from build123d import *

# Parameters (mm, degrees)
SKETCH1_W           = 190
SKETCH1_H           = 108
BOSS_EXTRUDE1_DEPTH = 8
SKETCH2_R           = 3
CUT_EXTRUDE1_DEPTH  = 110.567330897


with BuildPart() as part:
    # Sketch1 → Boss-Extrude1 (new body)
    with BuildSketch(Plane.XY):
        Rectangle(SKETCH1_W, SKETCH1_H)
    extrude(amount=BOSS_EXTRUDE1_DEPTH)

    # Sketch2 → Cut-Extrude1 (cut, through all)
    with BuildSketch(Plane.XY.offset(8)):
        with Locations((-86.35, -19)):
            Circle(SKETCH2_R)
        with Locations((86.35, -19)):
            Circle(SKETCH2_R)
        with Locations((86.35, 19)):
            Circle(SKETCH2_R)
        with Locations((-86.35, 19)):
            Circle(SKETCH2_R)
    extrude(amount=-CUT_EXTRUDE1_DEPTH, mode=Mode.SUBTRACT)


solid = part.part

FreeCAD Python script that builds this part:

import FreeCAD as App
import Part
import Sketcher

V = App.Vector


def add_polygon(sketch, points):
    """Adds a closed chain of lines whose ends are joined by coincident constraints."""
    first, n = sketch.GeometryCount, len(points)
    for a, b in zip(points, points[1:] + points[:1]):
        sketch.addGeometry(Part.LineSegment(App.Vector(*a, 0), App.Vector(*b, 0)), False)
    for i in range(n):
        sketch.addConstraint(Sketcher.Constraint("Coincident", first + i, 2, first + (i + 1) % n, 1))

doc = App.newDocument("Part")
params = doc.addObject("Spreadsheet::Sheet", "Params")
for row, (alias, value) in enumerate([
    ("sketch1_width", "190 mm"),
    ("sketch1_height", "108 mm"),
    ("pad1_length", "8 mm"),
    ("sketch2_diameter", "6 mm"),
], start=1):
    params.set(f"A{row}", alias)
    params.set(f"B{row}", "=" + value)
    params.setAlias(f"B{row}", alias)

body = doc.addObject("PartDesign::Body", "Body")

sketch1 = body.newObject("Sketcher::SketchObject", "Sketch")
sketch1.AttachmentSupport = (doc.getObject("XY_Plane"), [""])
sketch1.MapMode = "FlatFace"
add_polygon(sketch1, [(-95, 54), (-95, -54), (95, -54), (95, 54)])
sketch1.addConstraint([
    Sketcher.Constraint("Vertical", 0),
    Sketcher.Constraint("Horizontal", 1),
    Sketcher.Constraint("Vertical", 2),
    Sketcher.Constraint("Horizontal", 3),
    Sketcher.Constraint("Symmetric", 0, 2, 2, 2, -1, 1),
    Sketcher.Constraint("DistanceX", 1, 1, 1, 2, 190.0),
    Sketcher.Constraint("DistanceY", 0, 2, 0, 1, 108.0),
])
sketch1.setExpression("Constraints[9]", "Params.sketch1_width")
sketch1.setExpression("Constraints[10]", "Params.sketch1_height")
pad1 = body.newObject("PartDesign::Pad", "Pad")
pad1.Profile = sketch1
pad1.setExpression("Length", "Params.pad1_length")

sketch2 = body.newObject("Sketcher::SketchObject", "Sketch001")
sketch2.AttachmentSupport = (doc.getObject("XY_Plane"), [""])
sketch2.MapMode = "FlatFace"
sketch2.AttachmentOffset = App.Placement(V(0, 0, 8), App.Rotation())
sketch2.addGeometry([
    Part.Circle(V(-86.3, -19, 0), V(0, 0, 1), 3),
    Part.Circle(V(86.3, -19, 0), V(0, 0, 1), 3),
    Part.Circle(V(86.3, 19, 0), V(0, 0, 1), 3),
    Part.Circle(V(-86.3, 19, 0), V(0, 0, 1), 3),
], False)
sketch2.addConstraint([
    Sketcher.Constraint("Equal", 0, 1),
    Sketcher.Constraint("Equal", 1, 2),
    Sketcher.Constraint("Equal", 2, 3),
    Sketcher.Constraint("Symmetric", 0, 3, 2, 3, -1, 1),
    Sketcher.Constraint("Symmetric", 1, 3, 3, 3, -1, 1),
    Sketcher.Constraint("Symmetric", 0, 3, 1, 3, -2),
    Sketcher.Constraint("Diameter", 0, 6.0),
    Sketcher.Constraint("DistanceY", 0, 3, -1, 1, 19.0),
    Sketcher.Constraint("DistanceX", 0, 3, 1, 3, 172.7),
])
sketch2.setExpression("Constraints[6]", "Params.sketch2_diameter")
pocket1 = body.newObject("PartDesign::Pocket", "Pocket")
pocket1.Profile = sketch2
pocket1.Type = "ThroughAll"

doc.recompute()
